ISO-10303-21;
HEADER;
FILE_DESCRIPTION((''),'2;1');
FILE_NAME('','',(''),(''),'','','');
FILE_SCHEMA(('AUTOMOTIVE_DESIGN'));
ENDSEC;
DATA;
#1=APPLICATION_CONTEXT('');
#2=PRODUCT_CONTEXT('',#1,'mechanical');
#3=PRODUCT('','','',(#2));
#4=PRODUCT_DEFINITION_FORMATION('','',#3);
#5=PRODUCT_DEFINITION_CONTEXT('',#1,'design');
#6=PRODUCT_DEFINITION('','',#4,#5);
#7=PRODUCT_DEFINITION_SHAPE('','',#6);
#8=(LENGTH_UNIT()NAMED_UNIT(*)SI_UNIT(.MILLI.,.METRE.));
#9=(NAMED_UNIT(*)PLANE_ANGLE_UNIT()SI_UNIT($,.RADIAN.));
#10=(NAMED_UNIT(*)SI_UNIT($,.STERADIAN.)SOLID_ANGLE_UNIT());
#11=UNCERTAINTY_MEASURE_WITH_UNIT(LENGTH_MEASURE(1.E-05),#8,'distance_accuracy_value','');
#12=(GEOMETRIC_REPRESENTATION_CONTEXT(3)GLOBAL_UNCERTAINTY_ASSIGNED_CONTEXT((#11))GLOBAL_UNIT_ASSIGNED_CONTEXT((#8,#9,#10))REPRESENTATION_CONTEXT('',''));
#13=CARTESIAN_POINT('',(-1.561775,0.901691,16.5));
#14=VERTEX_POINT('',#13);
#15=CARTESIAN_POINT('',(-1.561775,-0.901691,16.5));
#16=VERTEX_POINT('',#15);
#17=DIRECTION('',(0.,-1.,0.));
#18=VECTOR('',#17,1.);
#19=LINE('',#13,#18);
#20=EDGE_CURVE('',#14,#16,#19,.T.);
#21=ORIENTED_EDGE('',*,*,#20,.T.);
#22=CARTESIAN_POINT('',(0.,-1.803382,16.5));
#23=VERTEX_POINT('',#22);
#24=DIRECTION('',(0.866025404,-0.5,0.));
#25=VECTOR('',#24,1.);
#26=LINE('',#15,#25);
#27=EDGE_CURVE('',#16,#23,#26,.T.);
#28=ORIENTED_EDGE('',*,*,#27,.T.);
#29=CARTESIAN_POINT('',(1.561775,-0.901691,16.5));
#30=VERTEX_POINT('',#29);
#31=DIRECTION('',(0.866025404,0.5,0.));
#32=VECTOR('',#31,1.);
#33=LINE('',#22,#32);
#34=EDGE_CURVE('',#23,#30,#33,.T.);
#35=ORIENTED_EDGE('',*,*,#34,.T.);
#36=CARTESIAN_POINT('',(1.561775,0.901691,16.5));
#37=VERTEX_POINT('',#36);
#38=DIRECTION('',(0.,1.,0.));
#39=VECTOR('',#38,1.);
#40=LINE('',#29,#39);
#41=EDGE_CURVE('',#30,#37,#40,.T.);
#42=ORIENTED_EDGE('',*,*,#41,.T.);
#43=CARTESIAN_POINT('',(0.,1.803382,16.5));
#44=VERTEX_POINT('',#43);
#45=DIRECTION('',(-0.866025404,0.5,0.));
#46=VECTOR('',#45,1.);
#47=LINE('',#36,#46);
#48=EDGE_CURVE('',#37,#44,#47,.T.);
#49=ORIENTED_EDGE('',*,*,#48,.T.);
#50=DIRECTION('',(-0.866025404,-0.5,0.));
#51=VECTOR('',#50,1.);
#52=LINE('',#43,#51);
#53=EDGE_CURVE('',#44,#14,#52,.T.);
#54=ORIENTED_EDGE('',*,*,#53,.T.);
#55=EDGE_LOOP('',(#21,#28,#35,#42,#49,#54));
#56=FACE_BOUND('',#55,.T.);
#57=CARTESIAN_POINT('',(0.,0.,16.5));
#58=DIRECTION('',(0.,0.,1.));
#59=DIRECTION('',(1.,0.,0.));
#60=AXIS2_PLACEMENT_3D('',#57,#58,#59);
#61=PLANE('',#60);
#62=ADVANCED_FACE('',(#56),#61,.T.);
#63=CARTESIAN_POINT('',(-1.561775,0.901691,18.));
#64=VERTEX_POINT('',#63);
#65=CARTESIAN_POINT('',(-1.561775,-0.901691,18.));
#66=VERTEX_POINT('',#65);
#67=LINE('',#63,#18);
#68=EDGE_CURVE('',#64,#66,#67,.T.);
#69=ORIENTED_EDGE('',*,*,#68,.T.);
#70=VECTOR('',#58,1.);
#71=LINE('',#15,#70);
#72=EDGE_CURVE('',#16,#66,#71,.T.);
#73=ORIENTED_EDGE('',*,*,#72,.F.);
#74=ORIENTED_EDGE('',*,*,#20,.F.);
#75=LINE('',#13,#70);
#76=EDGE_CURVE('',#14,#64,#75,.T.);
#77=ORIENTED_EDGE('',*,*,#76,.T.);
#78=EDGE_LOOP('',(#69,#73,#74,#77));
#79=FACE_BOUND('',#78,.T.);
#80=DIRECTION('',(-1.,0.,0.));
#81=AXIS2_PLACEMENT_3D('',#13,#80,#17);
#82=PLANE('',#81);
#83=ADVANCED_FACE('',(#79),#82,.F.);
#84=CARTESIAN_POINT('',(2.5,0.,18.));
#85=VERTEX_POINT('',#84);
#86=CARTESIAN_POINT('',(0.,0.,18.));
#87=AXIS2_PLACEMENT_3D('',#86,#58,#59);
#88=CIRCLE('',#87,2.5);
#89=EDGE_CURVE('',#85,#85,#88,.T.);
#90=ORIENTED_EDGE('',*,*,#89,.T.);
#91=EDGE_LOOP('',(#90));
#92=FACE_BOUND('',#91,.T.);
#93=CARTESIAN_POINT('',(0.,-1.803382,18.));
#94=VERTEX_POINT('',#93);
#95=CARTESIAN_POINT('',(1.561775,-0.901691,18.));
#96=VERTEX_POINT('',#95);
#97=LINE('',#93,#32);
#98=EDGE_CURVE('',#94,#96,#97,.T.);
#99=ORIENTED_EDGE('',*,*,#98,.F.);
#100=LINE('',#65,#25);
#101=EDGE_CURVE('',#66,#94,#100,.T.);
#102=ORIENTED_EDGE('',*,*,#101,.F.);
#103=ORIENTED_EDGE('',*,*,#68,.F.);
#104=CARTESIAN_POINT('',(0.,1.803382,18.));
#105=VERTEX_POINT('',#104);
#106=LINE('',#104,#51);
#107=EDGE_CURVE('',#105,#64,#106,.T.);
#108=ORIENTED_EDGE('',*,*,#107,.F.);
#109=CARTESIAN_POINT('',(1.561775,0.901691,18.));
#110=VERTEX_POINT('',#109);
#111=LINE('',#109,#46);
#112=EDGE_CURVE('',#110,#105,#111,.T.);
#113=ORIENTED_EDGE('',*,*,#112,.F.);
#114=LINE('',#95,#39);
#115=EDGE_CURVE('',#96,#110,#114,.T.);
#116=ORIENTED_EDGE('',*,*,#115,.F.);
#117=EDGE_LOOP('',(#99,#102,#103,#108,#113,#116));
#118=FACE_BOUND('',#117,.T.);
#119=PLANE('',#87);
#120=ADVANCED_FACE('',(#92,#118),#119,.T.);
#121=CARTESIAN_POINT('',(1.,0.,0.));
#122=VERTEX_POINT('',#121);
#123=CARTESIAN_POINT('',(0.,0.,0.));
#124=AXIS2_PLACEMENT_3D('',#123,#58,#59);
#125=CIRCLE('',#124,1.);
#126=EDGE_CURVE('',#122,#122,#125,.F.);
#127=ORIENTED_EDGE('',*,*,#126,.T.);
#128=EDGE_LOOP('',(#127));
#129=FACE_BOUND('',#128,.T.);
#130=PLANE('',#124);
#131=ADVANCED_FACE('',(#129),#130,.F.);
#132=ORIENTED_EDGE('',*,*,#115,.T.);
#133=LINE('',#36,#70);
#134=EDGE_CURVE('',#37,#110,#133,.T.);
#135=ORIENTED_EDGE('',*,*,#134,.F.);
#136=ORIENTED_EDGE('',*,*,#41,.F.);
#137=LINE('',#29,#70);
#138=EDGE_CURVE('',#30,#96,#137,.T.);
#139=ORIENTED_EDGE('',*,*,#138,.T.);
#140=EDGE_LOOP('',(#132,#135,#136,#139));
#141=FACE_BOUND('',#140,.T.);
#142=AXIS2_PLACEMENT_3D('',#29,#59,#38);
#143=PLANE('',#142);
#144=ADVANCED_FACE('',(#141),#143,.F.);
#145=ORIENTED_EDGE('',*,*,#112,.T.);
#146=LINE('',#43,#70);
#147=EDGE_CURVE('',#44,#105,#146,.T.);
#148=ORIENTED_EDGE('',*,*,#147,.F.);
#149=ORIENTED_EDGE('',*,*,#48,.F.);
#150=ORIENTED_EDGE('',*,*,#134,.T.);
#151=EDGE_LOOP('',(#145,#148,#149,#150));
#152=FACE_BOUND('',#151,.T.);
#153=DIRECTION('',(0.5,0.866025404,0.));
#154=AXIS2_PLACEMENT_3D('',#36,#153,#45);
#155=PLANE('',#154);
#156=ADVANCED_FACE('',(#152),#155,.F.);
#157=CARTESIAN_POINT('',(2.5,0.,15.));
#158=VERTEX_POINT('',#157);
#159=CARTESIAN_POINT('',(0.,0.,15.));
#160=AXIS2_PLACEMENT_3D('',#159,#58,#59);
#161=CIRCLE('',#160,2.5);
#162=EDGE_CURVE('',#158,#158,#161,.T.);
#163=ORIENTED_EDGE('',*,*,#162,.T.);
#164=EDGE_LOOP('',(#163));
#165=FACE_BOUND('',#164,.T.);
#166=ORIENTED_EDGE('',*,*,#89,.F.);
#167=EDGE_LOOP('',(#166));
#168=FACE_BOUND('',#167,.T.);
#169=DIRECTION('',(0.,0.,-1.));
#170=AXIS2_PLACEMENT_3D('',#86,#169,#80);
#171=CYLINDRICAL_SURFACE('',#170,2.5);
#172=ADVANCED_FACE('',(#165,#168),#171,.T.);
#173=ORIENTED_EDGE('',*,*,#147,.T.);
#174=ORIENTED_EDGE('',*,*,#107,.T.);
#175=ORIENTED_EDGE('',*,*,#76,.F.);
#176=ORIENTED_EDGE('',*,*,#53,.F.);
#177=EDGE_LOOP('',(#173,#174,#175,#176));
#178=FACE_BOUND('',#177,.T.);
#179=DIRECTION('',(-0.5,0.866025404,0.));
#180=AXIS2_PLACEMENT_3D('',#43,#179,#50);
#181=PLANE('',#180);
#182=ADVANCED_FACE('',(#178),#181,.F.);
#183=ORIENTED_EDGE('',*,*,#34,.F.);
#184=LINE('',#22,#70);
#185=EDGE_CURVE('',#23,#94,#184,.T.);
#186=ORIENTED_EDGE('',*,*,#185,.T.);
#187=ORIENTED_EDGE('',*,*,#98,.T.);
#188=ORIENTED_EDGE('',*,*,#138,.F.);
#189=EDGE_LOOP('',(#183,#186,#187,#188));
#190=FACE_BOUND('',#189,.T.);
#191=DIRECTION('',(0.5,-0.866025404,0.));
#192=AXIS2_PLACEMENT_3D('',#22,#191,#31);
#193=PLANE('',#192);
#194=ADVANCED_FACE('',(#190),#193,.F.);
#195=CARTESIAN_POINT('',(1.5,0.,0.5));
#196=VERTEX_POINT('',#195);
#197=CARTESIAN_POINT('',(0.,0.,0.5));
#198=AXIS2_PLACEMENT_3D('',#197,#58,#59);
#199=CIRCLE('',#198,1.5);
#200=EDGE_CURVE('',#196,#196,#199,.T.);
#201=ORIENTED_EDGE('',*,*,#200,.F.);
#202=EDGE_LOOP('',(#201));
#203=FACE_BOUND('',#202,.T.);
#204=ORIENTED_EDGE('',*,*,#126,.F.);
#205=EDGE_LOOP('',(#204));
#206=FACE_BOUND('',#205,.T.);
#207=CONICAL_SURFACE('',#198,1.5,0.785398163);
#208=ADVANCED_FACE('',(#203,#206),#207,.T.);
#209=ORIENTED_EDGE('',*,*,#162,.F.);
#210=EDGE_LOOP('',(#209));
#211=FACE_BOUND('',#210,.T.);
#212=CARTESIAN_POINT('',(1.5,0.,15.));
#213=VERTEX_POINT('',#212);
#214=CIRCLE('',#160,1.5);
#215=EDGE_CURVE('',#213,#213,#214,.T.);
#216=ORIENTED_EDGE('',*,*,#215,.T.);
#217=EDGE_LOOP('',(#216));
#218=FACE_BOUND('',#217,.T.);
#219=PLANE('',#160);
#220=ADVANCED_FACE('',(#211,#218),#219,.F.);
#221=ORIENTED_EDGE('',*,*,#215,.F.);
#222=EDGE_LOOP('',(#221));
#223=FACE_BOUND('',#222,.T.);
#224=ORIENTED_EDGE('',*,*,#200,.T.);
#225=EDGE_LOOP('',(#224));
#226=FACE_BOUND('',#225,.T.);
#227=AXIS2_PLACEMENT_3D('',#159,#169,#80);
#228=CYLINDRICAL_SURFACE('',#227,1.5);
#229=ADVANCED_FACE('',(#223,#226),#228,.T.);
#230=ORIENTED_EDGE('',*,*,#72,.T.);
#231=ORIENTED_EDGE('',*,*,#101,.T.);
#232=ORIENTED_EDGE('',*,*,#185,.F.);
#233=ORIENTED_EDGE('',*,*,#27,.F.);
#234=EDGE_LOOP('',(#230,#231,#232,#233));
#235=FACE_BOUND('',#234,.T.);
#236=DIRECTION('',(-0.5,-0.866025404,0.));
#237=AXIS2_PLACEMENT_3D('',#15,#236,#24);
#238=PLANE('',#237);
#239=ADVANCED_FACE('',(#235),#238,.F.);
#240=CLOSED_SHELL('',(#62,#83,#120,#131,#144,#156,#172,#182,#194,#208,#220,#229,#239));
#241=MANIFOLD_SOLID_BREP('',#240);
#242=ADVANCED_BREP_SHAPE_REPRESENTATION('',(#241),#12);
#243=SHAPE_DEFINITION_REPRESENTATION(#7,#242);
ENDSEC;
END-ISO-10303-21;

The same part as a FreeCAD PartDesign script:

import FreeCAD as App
import Part
import Sketcher
Q = App.Units.Quantity


def edges_at(feature, points):
    """Names of the edges that pass closest to the given points."""
    edges = feature.Shape.Edges
    near = lambda p: min(range(len(edges)), key=lambda i: edges[i].distToShape(Part.Vertex(*p))[0])
    return sorted({f"Edge{near(p) + 1}" for p in points})


def add_polygon(sketch, points):
    """Adds a closed chain of lines whose ends are joined by coincident constraints."""
    first, n = sketch.GeometryCount, len(points)
    for a, b in zip(points, points[1:] + points[:1]):
        sketch.addGeometry(Part.LineSegment(App.Vector(*a, 0), App.Vector(*b, 0)), False)
    for i in range(n):
        sketch.addConstraint(Sketcher.Constraint("Coincident", first + i, 2, first + (i + 1) % n, 1))

doc = App.newDocument("Part")
params = doc.addObject("Spreadsheet::Sheet", "Params")
for row, (alias, value) in enumerate([
    ("sketch1_diameter", "3 mm"),
    ("pad1_length", "15 mm"),
    ("sketch2_diameter", "5 mm"),
    ("pad2_length", "3 mm"),
    ("pocket1_length", "1.5 mm"),
    ("chamfer_size", "0.5 mm"),
], start=1):
    params.set(f"A{row}", alias)
    params.set(f"B{row}", "=" + value)
    params.setAlias(f"B{row}", alias)

body = doc.addObject("PartDesign::Body", "Body")

sketch1 = doc.addObject("Sketcher::SketchObject", "Sketch")
body.addObject(sketch1)
sketch1.AttachmentSupport = (doc.XY_Plane, [""])
sketch1.MapMode = "FlatFace"
sketch1.addGeometry(Part.Circle(App.Vector(0, 0, 0), App.Vector(0, 0, 1), 1.5), False)
sketch1.addConstraint([
    Sketcher.Constraint("Coincident", 0, 3, -1, 1),
    Sketcher.Constraint("Diameter", 0, 3.0),
])
sketch1.setExpression("Constraints[1]", "Params.sketch1_diameter")
pad1 = doc.addObject("PartDesign::Pad", "Pad")
body.addObject(pad1)
pad1.Profile = sketch1
pad1.setExpression("Length", "Params.pad1_length")

sketch2 = doc.addObject("Sketcher::SketchObject", "Sketch001")
body.addObject(sketch2)
sketch2.AttachmentSupport = (doc.XY_Plane, [""])
sketch2.MapMode = "FlatFace"
sketch2.AttachmentOffset = App.Placement(App.Vector(0, 0, 15), App.Rotation())
sketch2.addGeometry(Part.Circle(App.Vector(0, 0, 0), App.Vector(0, 0, 1), 2.5), False)
sketch2.addConstraint([
    Sketcher.Constraint("Coincident", 0, 3, -1, 1),
    Sketcher.Constraint("Diameter", 0, 5.0),
])
sketch2.setExpression("Constraints[1]", "Params.sketch2_diameter")
pad2 = doc.addObject("PartDesign::Pad", "Pad001")
body.addObject(pad2)
pad2.Profile = sketch2
pad2.setExpression("Length", "Params.pad2_length")

sketch3 = doc.addObject("Sketcher::SketchObject", "Sketch002")
body.addObject(sketch3)
sketch3.AttachmentSupport = (doc.XY_Plane, [""])
sketch3.MapMode = "FlatFace"
sketch3.AttachmentOffset = App.Placement(App.Vector(0, 0, 18), App.Rotation())
add_polygon(sketch3, [(0, 1.803382), (-1.561775, 0.901691), (-1.561775, -0.901691), (0, -1.803382), (1.561775, -0.901691), (1.561775, 0.901691)])
sketch3.addConstraint([
    Sketcher.Constraint("Vertical", 1),
    Sketcher.Constraint("Vertical", 4),
    Sketcher.Constraint("Symmetric", 0, 2, 3, 2, -1, 1),
    Sketcher.Constraint("Symmetric", 2, 2, 5, 2, -1, 1),
    Sketcher.Constraint("PointOnObject", 2, 2, -2),
    Sketcher.Constraint("Parallel", 2, 5),
    Sketcher.Constraint("Horizontal", 1, 2, 3, 2),
    Sketcher.Constraint("Angle", 0, Q("-150 deg")),
    Sketcher.Constraint("DistanceY", 1, 2, 1, 1, 1.803382),
    Sketcher.Constraint("DistanceY", 2, 2, 1, 2, 0.901691),
])
pocket1 = doc.addObject("PartDesign::Pocket", "Pocket")
body.addObject(pocket1)
pocket1.Profile = sketch3
pocket1.setExpression("Length", "Params.pocket1_length")
doc.recompute()

chamfer = doc.addObject("PartDesign::Chamfer", "Chamfer")
body.addObject(chamfer)
chamfer.Base = (pocket1, edges_at(pocket1, [(-1.5, 0, 0)]))
chamfer.setExpression("Size", "Params.chamfer_size")

doc.recompute()
